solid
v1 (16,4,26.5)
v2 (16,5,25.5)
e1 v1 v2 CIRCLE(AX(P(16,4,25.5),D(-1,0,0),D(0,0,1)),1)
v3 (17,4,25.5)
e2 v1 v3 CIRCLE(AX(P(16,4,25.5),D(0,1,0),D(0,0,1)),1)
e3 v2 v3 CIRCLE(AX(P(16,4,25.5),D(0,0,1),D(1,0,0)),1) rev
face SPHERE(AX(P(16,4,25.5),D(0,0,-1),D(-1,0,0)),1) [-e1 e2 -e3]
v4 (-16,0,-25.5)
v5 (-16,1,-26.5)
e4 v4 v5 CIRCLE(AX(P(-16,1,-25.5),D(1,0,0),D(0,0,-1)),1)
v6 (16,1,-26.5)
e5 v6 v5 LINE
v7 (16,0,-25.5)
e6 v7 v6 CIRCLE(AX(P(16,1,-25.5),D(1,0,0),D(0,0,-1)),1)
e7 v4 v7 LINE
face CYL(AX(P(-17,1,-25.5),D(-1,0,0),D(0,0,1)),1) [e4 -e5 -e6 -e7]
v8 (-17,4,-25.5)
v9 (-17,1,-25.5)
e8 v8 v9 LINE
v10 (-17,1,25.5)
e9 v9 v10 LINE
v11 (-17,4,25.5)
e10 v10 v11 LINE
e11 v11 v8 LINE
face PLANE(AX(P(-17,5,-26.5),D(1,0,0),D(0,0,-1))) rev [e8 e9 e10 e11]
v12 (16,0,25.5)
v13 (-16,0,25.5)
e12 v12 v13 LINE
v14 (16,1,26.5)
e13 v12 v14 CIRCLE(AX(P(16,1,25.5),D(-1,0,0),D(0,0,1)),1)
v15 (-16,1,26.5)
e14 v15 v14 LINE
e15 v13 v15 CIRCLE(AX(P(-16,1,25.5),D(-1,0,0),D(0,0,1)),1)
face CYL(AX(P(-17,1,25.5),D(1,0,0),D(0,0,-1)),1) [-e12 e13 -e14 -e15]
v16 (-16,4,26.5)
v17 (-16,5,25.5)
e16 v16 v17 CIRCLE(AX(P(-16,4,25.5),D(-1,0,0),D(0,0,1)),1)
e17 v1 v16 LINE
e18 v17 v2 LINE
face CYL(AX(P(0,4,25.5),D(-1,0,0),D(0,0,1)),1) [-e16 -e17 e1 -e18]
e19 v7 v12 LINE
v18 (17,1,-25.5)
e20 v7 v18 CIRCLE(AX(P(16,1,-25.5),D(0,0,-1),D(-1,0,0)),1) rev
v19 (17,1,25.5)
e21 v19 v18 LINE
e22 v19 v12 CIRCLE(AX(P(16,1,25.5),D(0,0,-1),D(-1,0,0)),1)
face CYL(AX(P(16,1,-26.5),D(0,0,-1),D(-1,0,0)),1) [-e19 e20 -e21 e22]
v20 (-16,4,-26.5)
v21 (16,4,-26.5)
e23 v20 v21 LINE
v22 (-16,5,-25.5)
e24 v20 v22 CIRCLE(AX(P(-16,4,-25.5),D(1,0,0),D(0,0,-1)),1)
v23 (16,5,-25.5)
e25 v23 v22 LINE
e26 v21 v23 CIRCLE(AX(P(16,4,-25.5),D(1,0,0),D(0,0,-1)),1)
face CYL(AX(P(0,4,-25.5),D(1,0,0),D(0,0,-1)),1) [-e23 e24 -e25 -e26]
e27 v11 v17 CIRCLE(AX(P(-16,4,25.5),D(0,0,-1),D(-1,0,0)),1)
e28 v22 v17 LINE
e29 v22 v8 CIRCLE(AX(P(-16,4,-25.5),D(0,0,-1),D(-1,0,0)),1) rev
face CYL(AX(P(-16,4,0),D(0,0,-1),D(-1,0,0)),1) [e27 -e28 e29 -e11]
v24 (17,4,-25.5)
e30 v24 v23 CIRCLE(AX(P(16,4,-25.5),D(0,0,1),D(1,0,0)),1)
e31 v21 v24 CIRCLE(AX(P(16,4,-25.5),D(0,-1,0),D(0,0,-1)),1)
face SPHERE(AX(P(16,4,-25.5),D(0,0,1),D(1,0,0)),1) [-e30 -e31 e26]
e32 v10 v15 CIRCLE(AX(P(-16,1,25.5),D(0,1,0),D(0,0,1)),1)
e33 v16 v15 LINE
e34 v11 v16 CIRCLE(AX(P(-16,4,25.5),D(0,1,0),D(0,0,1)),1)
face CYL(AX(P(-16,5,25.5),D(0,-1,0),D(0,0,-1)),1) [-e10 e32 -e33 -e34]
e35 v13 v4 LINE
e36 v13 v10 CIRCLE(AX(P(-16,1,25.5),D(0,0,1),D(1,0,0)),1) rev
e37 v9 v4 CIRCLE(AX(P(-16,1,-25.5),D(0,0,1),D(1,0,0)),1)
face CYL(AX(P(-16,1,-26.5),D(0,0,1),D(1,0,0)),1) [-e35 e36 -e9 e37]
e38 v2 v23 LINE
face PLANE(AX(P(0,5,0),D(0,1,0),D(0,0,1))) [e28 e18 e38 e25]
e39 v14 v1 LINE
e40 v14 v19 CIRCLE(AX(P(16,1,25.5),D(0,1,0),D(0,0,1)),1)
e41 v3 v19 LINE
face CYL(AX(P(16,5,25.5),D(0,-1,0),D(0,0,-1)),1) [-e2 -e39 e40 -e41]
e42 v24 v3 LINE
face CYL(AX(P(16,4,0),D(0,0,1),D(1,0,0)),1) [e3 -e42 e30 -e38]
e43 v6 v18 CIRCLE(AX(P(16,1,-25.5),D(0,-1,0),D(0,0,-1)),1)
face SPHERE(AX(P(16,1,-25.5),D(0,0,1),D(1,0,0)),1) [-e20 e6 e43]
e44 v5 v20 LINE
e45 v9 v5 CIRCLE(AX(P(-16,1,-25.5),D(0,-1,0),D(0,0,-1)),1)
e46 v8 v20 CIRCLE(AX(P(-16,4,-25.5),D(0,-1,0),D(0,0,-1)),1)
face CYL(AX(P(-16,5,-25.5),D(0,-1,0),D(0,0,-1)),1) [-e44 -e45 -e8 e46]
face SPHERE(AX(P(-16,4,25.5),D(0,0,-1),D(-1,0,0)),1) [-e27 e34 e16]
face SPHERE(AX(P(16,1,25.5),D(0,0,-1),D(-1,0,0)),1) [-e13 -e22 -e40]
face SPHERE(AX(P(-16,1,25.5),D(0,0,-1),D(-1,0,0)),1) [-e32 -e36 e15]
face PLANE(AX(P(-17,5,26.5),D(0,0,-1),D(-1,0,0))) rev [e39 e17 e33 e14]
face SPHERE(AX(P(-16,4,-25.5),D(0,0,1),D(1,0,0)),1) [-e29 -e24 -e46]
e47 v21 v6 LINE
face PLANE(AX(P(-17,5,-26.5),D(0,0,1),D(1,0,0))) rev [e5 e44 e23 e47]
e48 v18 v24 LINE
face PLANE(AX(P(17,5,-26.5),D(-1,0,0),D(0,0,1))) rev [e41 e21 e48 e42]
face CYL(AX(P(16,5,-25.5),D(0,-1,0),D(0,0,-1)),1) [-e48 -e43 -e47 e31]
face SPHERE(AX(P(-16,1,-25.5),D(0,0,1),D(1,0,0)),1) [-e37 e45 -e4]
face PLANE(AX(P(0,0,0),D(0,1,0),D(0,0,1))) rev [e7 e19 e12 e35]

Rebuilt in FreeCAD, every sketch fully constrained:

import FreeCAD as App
import Part
import Sketcher

V = App.Vector
Q = App.Units.Quantity


def edges_at(feature, points):
    """Names of the edges that pass closest to the given points."""
    edges = feature.Shape.Edges
    near = lambda p: min(range(len(edges)), key=lambda i: edges[i].distToShape(Part.Vertex(*p))[0])
    return sorted({f"Edge{near(p) + 1}" for p in points})


def add_polygon(sketch, points):
    """Adds a closed chain of lines whose ends are joined by coincident constraints."""
    first, n = sketch.GeometryCount, len(points)
    for a, b in zip(points, points[1:] + points[:1]):
        sketch.addGeometry(Part.LineSegment(App.Vector(*a, 0), App.Vector(*b, 0)), False)
    for i in range(n):
        sketch.addConstraint(Sketcher.Constraint("Coincident", first + i, 2, first + (i + 1) % n, 1))

doc = App.newDocument("Part")
body = doc.addObject("PartDesign::Body", "Body")

sketch1 = doc.addObject("Sketcher::SketchObject", "Sketch")
body.addObject(sketch1)
sketch1.AttachmentSupport = (doc.XZ_Plane, [""])
sketch1.MapMode = "FlatFace"
add_polygon(sketch1, [(-17, -26), (-17, 26), (17, 26), (17, -26)])
sketch1.addConstraint([
    Sketcher.Constraint("Vertical", 0),
    Sketcher.Constraint("Horizontal", 1),
    Sketcher.Constraint("Vertical", 2),
    Sketcher.Constraint("Horizontal", 3),
    Sketcher.Constraint("Symmetric", 0, 2, 2, 2, -1, 1),
    Sketcher.Constraint("DistanceX", 1, 1, 1, 2, Q("34 mm")),
    Sketcher.Constraint("DistanceY", 0, 1, 0, 2, Q("53 mm")),
])
pad1 = doc.addObject("PartDesign::Pad", "Pad")
body.addObject(pad1)
pad1.Profile = sketch1
pad1.Length = 5
pad1.Reversed = True
doc.recompute()

fillet = doc.addObject("PartDesign::Fillet", "Fillet")
body.addObject(fillet)
fillet.Base = (pad1, edges_at(pad1, [
    (-17, 5, 0),
    (17, 5, 0),
    (-17, 0, 0),
    (17, 0, 0),
]))
fillet.Radius = 1
doc.recompute()

fillet2 = doc.addObject("PartDesign::Fillet", "Fillet001")
body.addObject(fillet2)
fillet2.Base = (fillet, edges_at(fillet, [
    (-17, 2.5, 26.5),
    (-17, 2.5, -26.5),
    (0, 0, 26.5),
    (17, 2.5, 26.5),
    (0, 5, 26.5),
    (16.707, 4.707, 26.5),
    (16.707, 0.293, 26.5),
    (-16.707, 4.707, 26.5),
    (-16.707, 0.293, 26.5),
    (0, 0, -26.5),
    (0, 5, -26.5),
    (17, 2.5, -26.5),
    (16.707, 4.707, -26.5),
    (16.707, 0.293, -26.5),
    (-16.707, 4.707, -26.5),
    (-16.707, 0.293, -26.5),
]))
fillet2.Radius = 1

doc.recompute()
